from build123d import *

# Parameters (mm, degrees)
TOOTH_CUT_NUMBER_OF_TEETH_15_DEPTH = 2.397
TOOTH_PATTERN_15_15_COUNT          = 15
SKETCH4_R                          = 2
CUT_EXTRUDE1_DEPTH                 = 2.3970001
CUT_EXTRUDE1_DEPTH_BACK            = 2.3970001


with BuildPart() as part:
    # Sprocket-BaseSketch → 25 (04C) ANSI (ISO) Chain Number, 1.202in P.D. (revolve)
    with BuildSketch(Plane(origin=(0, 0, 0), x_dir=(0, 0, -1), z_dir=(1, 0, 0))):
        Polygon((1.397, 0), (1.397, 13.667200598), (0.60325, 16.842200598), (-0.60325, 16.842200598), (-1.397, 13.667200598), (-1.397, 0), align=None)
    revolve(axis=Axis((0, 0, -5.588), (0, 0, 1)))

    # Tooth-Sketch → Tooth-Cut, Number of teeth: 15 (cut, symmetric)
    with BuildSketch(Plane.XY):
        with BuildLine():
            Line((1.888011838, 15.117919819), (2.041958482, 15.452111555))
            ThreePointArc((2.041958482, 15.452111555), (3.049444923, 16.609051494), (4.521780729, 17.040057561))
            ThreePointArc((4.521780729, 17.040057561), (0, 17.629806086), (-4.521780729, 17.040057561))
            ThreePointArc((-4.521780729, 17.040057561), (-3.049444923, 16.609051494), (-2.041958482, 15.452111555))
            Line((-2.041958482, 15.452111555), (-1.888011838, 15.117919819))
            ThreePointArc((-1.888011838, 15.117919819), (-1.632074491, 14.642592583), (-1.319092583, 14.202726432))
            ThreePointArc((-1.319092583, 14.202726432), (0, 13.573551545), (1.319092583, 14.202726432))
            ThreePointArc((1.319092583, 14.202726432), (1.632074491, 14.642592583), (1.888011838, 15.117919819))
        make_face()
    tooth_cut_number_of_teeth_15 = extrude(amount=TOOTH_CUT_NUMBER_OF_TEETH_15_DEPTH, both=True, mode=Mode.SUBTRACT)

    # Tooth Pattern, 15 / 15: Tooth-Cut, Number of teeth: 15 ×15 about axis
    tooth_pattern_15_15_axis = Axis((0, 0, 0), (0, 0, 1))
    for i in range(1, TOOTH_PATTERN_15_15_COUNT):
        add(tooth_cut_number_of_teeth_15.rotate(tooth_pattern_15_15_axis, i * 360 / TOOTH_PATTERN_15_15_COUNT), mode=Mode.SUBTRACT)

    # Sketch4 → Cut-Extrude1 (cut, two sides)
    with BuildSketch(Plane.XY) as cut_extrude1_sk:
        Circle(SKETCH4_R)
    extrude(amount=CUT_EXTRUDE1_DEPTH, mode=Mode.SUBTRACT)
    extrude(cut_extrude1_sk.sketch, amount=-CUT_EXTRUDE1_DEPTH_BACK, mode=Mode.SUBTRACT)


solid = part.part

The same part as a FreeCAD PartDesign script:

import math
import FreeCAD as App
import Part
import Sketcher


def add_polygon(sketch, points):
    """Adds a closed chain of lines whose ends are joined by coincident constraints."""
    first, n = sketch.GeometryCount, len(points)
    for a, b in zip(points, points[1:] + points[:1]):
        sketch.addGeometry(Part.LineSegment(App.Vector(*a, 0), App.Vector(*b, 0)), False)
    for i in range(n):
        sketch.addConstraint(Sketcher.Constraint("Coincident", first + i, 2, first + (i + 1) % n, 1))

doc = App.newDocument("Part")
body = doc.addObject("PartDesign::Body", "Body")

# Sketch on YZ plane
sketch1 = body.newObject("Sketcher::SketchObject", "Sketch")
sketch1.AttachmentSupport = (doc.getObject("YZ_Plane"), [""])
sketch1.MapMode = "FlatFace"
add_polygon(sketch1, [(0, -1.4), (13.7, -1.4), (16.8, -0.6), (16.8, 0.6), (13.7, 1.4), (0, 1.4)])  # lines 0-5
sketch1.addConstraint([
    Sketcher.Constraint("Horizontal", 0),
    Sketcher.Constraint("Vertical", 2),
    Sketcher.Constraint("Horizontal", 4),
    Sketcher.Constraint("Vertical", 5),
    Sketcher.Constraint("Symmetric", 4, 2, 5, 2, -1, 1),
    Sketcher.Constraint("Vertical", 0, 2, 3, 2),
    Sketcher.Constraint("Equal", 1, 3),
    Sketcher.Constraint("DistanceY", 5, 2, 5, 1, 2.794),
    Sketcher.Constraint("DistanceX", 0, 1, 0, 2, 13.667201),
    Sketcher.Constraint("DistanceY", 2, 1, 2, 2, 1.2065),
    Sketcher.Constraint("DistanceX", 0, 2, 1, 2, 3.175),
])
revolution = body.newObject("PartDesign::Revolution", "Revolution")
revolution.Profile = sketch1
revolution.ReferenceAxis = (sketch1, ["V_Axis"])
revolution.Angle = 360

# Sketch on XY plane
sketch2 = body.newObject("Sketcher::SketchObject", "Sketch001")
sketch2.AttachmentSupport = (doc.getObject("XY_Plane"), [""])
sketch2.MapMode = "FlatFace"
sketch2.addGeometry([
    Part.LineSegment(App.Vector(1.89, 15.12, 0), App.Vector(2.04, 15.45, 0)),  # 0
    Part.ArcOfCircle(Part.Circle(App.Vector(4.52, 14.31, 0), App.Vector(0, 0, 1), 2.73), math.radians(90), math.radians(155)),  # 1
    Part.ArcOfCircle(Part.Circle(App.Vector(0, 0, 0), App.Vector(0, 0, 1), 17.63), math.radians(75), math.radians(105)),  # 2
    Part.ArcOfCircle(Part.Circle(App.Vector(-4.52, 14.31, 0), App.Vector(0, 0, 1), 2.73), math.radians(25), math.radians(90)),  # 3
    Part.LineSegment(App.Vector(-2.04, 15.45, 0), App.Vector(-1.89, 15.12, 0)),  # 4
    Part.ArcOfCircle(Part.Circle(App.Vector(2.05, 16.93, 0), App.Vector(0, 0, 1), 4.34), math.radians(-155.27), math.radians(-141)),  # 5
    Part.ArcOfCircle(Part.Circle(App.Vector(0, 15.27, 0), App.Vector(0, 0, 1), 1.7), math.radians(-141), math.radians(-39)),  # 6
    Part.ArcOfCircle(Part.Circle(App.Vector(-2.05, 16.93, 0), App.Vector(0, 0, 1), 4.34), math.radians(-39), math.radians(-24.73)),  # 7
], False)
sketch2.addConstraint([
    Sketcher.Constraint("Tangent", 0, 2, 1, 2),
    Sketcher.Constraint("Coincident", 1, 1, 2, 1),
    Sketcher.Constraint("Coincident", 2, 2, 3, 2),
    Sketcher.Constraint("Tangent", 3, 1, 4, 1),
    Sketcher.Constraint("Tangent", 4, 2, 5, 1),
    Sketcher.Constraint("Tangent", 5, 2, 6, 1),
    Sketcher.Constraint("Tangent", 6, 2, 7, 1),
    Sketcher.Constraint("Tangent", 7, 2, 0, 1),
    Sketcher.Constraint("Coincident", 2, 3, -1, 1),
    Sketcher.Constraint("Equal", 1, 3),
    Sketcher.Constraint("Equal", 5, 7),
    Sketcher.Constraint("Symmetric", 1, 3, 3, 3, -2),
    Sketcher.Constraint("Symmetric", 5, 3, 7, 3, -2),
    Sketcher.Constraint("Vertical", 3, 3, 2, 2),
    Sketcher.Constraint("Radius", 1, 2.730285),
    Sketcher.Constraint("Radius", 2, 17.629806),
    Sketcher.Constraint("Radius", 5, 4.338955),
    Sketcher.Constraint("Radius", 6, 1.697355),
    Sketcher.Constraint("DistanceY", 4, 2, 7, 3, 1.815399),
    Sketcher.Constraint("DistanceX", -1, 1, 1, 3, 4.521781),
    Sketcher.Constraint("DistanceX", -1, 1, 5, 3, 2.052909),
])
pocket1 = body.newObject("PartDesign::Pocket", "Pocket")
pocket1.Profile = sketch2
pocket1.Length = 4.794
pocket1.Midplane = True
doc.recompute()

polarpattern = body.newObject("PartDesign::PolarPattern", "PolarPattern")
polarpattern.Originals = [pocket1]
polarpattern.Axis = (doc.getObject("Z_Axis"), [""])
polarpattern.Angle = 360
polarpattern.Occurrences = 15
body.Tip = polarpattern

# Sketch on XY plane
sketch3 = body.newObject("Sketcher::SketchObject", "Sketch002")
sketch3.AttachmentSupport = (doc.getObject("XY_Plane"), [""])
sketch3.MapMode = "FlatFace"
sketch3.addGeometry(Part.Circle(App.Vector(0, 0, 0), App.Vector(0, 0, 1), 2), False)
sketch3.addConstraint([
    Sketcher.Constraint("Coincident", 0, 3, -1, 1),
    Sketcher.Constraint("Diameter", 0, 4.0),
])
pocket2 = body.newObject("PartDesign::Pocket", "Pocket001")
pocket2.Profile = sketch3
pocket2.Type = "ThroughAll"
pocket2.Midplane = True

doc.recompute()
